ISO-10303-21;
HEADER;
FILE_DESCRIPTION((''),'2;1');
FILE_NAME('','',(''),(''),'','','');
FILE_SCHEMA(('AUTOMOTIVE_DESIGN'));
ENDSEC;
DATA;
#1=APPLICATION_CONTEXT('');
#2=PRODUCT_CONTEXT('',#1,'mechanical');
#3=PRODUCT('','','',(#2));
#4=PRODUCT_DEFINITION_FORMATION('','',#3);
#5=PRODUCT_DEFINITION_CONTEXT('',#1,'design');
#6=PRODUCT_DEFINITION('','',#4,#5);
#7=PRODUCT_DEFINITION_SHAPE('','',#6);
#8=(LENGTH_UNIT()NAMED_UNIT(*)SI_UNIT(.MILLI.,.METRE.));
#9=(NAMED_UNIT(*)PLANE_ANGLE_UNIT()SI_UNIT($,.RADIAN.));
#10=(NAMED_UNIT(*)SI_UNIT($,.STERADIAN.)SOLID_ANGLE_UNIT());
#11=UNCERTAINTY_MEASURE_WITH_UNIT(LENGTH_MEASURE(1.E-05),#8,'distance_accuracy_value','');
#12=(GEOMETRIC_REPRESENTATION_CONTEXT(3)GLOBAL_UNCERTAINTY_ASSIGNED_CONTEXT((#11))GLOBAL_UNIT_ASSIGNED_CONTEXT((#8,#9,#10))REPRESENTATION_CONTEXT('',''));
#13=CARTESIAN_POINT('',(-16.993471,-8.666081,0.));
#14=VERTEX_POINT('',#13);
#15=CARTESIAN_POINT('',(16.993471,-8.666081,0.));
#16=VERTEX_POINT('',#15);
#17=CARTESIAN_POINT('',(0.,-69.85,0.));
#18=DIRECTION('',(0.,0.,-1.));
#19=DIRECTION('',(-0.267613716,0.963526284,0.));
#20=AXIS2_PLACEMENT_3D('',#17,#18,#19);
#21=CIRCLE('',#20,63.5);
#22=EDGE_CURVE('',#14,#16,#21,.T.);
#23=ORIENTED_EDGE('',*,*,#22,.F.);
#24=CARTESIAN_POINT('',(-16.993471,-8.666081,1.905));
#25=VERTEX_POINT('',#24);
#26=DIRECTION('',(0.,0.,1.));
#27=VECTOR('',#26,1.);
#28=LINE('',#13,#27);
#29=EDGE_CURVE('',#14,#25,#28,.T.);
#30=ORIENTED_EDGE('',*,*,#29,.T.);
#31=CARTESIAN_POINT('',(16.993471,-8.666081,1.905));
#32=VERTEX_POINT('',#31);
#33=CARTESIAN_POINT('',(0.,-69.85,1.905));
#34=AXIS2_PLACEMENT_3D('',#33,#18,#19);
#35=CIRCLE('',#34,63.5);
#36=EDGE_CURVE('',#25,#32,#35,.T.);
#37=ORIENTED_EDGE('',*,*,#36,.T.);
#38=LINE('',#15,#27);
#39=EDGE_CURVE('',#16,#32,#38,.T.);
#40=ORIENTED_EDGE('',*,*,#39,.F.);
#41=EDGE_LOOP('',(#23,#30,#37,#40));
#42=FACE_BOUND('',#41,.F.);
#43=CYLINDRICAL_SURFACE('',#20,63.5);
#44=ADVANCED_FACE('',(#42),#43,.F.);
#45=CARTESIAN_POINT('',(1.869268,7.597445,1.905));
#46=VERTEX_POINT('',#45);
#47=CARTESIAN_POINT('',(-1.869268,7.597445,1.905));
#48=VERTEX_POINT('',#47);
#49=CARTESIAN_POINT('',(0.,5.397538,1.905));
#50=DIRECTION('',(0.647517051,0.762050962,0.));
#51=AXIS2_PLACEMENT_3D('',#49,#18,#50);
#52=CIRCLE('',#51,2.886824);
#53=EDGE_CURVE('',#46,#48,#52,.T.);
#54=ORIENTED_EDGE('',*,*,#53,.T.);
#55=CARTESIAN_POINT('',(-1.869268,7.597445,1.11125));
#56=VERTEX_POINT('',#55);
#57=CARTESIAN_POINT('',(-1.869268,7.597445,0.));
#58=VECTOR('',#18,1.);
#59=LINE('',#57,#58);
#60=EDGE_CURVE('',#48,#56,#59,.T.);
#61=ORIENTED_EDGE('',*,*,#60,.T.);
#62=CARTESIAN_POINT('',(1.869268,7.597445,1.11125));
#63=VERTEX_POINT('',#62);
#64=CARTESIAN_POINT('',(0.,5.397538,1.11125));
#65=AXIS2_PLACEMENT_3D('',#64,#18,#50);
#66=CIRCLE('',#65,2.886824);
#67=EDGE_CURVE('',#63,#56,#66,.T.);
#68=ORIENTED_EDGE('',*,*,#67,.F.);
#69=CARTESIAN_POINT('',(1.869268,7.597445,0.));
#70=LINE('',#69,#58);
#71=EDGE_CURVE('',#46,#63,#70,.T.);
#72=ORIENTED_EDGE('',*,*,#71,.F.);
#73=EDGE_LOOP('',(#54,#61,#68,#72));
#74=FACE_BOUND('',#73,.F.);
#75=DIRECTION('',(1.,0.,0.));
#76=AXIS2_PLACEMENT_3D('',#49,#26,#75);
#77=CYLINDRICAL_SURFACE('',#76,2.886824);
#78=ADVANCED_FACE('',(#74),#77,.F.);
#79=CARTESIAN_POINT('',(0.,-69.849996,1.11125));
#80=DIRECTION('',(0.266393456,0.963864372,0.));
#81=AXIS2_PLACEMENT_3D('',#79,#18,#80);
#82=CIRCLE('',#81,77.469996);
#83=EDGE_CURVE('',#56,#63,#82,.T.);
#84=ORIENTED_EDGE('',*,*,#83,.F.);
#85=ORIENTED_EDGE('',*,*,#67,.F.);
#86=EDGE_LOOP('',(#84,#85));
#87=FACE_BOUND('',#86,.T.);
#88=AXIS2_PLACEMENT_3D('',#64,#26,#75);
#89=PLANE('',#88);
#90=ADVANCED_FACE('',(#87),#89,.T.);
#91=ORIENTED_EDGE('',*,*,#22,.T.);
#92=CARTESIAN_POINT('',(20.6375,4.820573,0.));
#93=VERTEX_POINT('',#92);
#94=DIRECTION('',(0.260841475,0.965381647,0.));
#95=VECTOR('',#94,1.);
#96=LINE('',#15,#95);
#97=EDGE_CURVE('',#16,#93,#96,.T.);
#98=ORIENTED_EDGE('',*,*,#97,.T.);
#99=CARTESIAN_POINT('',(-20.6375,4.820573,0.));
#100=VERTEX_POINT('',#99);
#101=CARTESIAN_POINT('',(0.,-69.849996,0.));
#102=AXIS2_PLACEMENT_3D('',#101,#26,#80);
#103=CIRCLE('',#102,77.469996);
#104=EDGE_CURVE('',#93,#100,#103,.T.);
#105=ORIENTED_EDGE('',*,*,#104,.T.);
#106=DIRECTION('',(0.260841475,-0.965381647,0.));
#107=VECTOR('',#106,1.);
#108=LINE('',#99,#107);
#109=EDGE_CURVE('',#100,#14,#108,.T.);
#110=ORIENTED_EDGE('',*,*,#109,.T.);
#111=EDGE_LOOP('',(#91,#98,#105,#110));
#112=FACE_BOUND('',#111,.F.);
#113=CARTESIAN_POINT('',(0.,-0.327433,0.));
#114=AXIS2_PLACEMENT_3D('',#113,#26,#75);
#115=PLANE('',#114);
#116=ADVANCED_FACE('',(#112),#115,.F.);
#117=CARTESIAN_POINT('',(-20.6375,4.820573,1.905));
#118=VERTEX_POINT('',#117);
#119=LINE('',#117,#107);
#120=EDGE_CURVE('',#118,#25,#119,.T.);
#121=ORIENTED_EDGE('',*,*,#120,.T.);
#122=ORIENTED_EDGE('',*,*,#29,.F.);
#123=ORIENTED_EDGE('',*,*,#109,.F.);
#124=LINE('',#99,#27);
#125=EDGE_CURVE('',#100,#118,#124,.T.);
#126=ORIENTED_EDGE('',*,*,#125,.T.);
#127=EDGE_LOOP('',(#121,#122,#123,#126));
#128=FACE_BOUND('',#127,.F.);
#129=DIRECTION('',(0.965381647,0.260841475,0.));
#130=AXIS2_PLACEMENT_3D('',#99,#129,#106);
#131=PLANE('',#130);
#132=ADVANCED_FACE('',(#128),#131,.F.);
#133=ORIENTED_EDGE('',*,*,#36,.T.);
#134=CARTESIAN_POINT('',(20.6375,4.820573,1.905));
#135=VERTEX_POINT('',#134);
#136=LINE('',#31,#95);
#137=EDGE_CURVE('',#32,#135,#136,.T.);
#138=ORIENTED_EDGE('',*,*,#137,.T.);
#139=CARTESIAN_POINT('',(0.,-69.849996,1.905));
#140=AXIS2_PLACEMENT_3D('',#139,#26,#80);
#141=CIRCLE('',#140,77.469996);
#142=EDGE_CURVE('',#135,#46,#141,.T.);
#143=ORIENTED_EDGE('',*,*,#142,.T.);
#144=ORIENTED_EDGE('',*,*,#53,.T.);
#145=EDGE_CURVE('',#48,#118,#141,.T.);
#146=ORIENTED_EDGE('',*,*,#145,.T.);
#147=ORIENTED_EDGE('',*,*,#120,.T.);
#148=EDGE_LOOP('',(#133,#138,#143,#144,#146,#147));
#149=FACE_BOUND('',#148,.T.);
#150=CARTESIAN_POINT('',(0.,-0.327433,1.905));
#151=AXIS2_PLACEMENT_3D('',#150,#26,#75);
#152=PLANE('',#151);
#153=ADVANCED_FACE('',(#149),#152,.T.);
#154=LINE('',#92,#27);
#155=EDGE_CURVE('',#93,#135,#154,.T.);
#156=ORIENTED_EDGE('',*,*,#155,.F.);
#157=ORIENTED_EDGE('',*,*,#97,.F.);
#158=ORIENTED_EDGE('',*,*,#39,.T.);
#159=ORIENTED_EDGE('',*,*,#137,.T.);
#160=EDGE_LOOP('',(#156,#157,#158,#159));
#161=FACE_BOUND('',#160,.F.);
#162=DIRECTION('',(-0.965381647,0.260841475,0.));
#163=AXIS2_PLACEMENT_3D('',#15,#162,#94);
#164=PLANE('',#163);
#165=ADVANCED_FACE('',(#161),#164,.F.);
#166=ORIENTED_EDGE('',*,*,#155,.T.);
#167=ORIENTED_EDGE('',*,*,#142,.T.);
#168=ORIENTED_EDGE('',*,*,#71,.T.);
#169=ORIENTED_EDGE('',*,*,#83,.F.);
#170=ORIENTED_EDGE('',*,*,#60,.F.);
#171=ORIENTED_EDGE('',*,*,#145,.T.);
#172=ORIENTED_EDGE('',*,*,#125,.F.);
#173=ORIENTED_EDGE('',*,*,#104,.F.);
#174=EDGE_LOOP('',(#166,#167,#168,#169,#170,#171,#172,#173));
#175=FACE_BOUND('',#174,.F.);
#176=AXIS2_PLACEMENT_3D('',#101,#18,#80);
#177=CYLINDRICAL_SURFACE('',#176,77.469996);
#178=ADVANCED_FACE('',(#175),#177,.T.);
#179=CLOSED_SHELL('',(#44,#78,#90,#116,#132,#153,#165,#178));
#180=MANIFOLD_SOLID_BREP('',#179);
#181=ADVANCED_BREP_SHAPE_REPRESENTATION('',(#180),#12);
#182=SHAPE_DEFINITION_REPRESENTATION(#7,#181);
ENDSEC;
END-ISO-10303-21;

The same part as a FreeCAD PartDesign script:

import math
import FreeCAD as App
import Part
import Sketcher

V = App.Vector
Q = App.Units.Quantity

doc = App.newDocument("Part")
params = doc.addObject("Spreadsheet::Sheet", "Params")
for row, (alias, value) in enumerate([
    ("sketch1_radius", "2.5 in"),
    ("sketch1_radius2", "3.0499998 in"),
    ("pad1_length", "0.075 in"),
    ("pocket1_length", "0.03125 in"),
], start=1):
    params.set(f"A{row}", alias)
    params.set(f"B{row}", "=" + value)
    params.setAlias(f"B{row}", alias)

body = doc.addObject("PartDesign::Body", "Body")

# Sketch on XY plane
sketch1 = body.newObject("Sketcher::SketchObject", "Sketch")
sketch1.AttachmentSupport = (doc.getObject("XY_Plane"), [""])
sketch1.MapMode = "FlatFace"
sketch1.addGeometry([
    Part.LineSegment(V(17, -9, 0), V(21, 5, 0)),
    Part.ArcOfCircle(Part.Circle(V(0, -70, 0), V(0, 0, 1), 77), math.radians(75), math.radians(105)),
    Part.LineSegment(V(-21, 5, 0), V(-17, -9, 0)),
    Part.ArcOfCircle(Part.Circle(V(0, -70, 0), V(0, 0, 1), 64), math.radians(74), math.radians(106)),
], False)
sketch1.addConstraint([
    Sketcher.Constraint("Coincident", 0, 2, 1, 1),
    Sketcher.Constraint("Coincident", 1, 2, 2, 1),
    Sketcher.Constraint("Coincident", 2, 2, 3, 2),
    Sketcher.Constraint("Coincident", 3, 1, 0, 1),
    Sketcher.Constraint("Coincident", 3, 3, 1, 3),
    Sketcher.Constraint("Symmetric", 0, 2, 1, 2, -2),
    Sketcher.Constraint("Horizontal", 2, 2, 3, 1),
    Sketcher.Constraint("Radius", 3, Q("2.5 in")),
    Sketcher.Constraint("Radius", 1, Q("3.0499998 in")),
    Sketcher.Constraint("DistanceY", 1, 3, -1, 1, Q("2.7499998 in")),
    Sketcher.Constraint("Angle", 0, Q("74.880002 deg")),
    Sketcher.Constraint("DistanceX", -1, 1, 0, 2, Q("0.8125 in")),
])
sketch1.setExpression("Constraints[7]", "Params.sketch1_radius")
sketch1.setExpression("Constraints[8]", "Params.sketch1_radius2")
pad1 = body.newObject("PartDesign::Pad", "Pad")
pad1.Profile = sketch1
pad1.setExpression("Length", "Params.pad1_length")

# Sketch on XY plane
sketch2 = body.newObject("Sketcher::SketchObject", "Sketch001")
sketch2.AttachmentSupport = (doc.getObject("XY_Plane"), [""])
sketch2.MapMode = "FlatFace"
sketch2.AttachmentOffset = App.Placement(V(0, 0, 0.075 * 25.4), App.Rotation())
sketch2.addGeometry(Part.Circle(V(0, 5.4, 0), V(0, 0, 1), 2.9), False)
sketch2.addConstraint([
    Sketcher.Constraint("PointOnObject", 0, 3, -2),
    Sketcher.Constraint("Diameter", 0, 5.773648),
    Sketcher.Constraint("DistanceY", -1, 1, 0, 3, 5.397538),
])
pocket1 = body.newObject("PartDesign::Pocket", "Pocket")
pocket1.Profile = sketch2
pocket1.setExpression("Length", "Params.pocket1_length")

doc.recompute()
